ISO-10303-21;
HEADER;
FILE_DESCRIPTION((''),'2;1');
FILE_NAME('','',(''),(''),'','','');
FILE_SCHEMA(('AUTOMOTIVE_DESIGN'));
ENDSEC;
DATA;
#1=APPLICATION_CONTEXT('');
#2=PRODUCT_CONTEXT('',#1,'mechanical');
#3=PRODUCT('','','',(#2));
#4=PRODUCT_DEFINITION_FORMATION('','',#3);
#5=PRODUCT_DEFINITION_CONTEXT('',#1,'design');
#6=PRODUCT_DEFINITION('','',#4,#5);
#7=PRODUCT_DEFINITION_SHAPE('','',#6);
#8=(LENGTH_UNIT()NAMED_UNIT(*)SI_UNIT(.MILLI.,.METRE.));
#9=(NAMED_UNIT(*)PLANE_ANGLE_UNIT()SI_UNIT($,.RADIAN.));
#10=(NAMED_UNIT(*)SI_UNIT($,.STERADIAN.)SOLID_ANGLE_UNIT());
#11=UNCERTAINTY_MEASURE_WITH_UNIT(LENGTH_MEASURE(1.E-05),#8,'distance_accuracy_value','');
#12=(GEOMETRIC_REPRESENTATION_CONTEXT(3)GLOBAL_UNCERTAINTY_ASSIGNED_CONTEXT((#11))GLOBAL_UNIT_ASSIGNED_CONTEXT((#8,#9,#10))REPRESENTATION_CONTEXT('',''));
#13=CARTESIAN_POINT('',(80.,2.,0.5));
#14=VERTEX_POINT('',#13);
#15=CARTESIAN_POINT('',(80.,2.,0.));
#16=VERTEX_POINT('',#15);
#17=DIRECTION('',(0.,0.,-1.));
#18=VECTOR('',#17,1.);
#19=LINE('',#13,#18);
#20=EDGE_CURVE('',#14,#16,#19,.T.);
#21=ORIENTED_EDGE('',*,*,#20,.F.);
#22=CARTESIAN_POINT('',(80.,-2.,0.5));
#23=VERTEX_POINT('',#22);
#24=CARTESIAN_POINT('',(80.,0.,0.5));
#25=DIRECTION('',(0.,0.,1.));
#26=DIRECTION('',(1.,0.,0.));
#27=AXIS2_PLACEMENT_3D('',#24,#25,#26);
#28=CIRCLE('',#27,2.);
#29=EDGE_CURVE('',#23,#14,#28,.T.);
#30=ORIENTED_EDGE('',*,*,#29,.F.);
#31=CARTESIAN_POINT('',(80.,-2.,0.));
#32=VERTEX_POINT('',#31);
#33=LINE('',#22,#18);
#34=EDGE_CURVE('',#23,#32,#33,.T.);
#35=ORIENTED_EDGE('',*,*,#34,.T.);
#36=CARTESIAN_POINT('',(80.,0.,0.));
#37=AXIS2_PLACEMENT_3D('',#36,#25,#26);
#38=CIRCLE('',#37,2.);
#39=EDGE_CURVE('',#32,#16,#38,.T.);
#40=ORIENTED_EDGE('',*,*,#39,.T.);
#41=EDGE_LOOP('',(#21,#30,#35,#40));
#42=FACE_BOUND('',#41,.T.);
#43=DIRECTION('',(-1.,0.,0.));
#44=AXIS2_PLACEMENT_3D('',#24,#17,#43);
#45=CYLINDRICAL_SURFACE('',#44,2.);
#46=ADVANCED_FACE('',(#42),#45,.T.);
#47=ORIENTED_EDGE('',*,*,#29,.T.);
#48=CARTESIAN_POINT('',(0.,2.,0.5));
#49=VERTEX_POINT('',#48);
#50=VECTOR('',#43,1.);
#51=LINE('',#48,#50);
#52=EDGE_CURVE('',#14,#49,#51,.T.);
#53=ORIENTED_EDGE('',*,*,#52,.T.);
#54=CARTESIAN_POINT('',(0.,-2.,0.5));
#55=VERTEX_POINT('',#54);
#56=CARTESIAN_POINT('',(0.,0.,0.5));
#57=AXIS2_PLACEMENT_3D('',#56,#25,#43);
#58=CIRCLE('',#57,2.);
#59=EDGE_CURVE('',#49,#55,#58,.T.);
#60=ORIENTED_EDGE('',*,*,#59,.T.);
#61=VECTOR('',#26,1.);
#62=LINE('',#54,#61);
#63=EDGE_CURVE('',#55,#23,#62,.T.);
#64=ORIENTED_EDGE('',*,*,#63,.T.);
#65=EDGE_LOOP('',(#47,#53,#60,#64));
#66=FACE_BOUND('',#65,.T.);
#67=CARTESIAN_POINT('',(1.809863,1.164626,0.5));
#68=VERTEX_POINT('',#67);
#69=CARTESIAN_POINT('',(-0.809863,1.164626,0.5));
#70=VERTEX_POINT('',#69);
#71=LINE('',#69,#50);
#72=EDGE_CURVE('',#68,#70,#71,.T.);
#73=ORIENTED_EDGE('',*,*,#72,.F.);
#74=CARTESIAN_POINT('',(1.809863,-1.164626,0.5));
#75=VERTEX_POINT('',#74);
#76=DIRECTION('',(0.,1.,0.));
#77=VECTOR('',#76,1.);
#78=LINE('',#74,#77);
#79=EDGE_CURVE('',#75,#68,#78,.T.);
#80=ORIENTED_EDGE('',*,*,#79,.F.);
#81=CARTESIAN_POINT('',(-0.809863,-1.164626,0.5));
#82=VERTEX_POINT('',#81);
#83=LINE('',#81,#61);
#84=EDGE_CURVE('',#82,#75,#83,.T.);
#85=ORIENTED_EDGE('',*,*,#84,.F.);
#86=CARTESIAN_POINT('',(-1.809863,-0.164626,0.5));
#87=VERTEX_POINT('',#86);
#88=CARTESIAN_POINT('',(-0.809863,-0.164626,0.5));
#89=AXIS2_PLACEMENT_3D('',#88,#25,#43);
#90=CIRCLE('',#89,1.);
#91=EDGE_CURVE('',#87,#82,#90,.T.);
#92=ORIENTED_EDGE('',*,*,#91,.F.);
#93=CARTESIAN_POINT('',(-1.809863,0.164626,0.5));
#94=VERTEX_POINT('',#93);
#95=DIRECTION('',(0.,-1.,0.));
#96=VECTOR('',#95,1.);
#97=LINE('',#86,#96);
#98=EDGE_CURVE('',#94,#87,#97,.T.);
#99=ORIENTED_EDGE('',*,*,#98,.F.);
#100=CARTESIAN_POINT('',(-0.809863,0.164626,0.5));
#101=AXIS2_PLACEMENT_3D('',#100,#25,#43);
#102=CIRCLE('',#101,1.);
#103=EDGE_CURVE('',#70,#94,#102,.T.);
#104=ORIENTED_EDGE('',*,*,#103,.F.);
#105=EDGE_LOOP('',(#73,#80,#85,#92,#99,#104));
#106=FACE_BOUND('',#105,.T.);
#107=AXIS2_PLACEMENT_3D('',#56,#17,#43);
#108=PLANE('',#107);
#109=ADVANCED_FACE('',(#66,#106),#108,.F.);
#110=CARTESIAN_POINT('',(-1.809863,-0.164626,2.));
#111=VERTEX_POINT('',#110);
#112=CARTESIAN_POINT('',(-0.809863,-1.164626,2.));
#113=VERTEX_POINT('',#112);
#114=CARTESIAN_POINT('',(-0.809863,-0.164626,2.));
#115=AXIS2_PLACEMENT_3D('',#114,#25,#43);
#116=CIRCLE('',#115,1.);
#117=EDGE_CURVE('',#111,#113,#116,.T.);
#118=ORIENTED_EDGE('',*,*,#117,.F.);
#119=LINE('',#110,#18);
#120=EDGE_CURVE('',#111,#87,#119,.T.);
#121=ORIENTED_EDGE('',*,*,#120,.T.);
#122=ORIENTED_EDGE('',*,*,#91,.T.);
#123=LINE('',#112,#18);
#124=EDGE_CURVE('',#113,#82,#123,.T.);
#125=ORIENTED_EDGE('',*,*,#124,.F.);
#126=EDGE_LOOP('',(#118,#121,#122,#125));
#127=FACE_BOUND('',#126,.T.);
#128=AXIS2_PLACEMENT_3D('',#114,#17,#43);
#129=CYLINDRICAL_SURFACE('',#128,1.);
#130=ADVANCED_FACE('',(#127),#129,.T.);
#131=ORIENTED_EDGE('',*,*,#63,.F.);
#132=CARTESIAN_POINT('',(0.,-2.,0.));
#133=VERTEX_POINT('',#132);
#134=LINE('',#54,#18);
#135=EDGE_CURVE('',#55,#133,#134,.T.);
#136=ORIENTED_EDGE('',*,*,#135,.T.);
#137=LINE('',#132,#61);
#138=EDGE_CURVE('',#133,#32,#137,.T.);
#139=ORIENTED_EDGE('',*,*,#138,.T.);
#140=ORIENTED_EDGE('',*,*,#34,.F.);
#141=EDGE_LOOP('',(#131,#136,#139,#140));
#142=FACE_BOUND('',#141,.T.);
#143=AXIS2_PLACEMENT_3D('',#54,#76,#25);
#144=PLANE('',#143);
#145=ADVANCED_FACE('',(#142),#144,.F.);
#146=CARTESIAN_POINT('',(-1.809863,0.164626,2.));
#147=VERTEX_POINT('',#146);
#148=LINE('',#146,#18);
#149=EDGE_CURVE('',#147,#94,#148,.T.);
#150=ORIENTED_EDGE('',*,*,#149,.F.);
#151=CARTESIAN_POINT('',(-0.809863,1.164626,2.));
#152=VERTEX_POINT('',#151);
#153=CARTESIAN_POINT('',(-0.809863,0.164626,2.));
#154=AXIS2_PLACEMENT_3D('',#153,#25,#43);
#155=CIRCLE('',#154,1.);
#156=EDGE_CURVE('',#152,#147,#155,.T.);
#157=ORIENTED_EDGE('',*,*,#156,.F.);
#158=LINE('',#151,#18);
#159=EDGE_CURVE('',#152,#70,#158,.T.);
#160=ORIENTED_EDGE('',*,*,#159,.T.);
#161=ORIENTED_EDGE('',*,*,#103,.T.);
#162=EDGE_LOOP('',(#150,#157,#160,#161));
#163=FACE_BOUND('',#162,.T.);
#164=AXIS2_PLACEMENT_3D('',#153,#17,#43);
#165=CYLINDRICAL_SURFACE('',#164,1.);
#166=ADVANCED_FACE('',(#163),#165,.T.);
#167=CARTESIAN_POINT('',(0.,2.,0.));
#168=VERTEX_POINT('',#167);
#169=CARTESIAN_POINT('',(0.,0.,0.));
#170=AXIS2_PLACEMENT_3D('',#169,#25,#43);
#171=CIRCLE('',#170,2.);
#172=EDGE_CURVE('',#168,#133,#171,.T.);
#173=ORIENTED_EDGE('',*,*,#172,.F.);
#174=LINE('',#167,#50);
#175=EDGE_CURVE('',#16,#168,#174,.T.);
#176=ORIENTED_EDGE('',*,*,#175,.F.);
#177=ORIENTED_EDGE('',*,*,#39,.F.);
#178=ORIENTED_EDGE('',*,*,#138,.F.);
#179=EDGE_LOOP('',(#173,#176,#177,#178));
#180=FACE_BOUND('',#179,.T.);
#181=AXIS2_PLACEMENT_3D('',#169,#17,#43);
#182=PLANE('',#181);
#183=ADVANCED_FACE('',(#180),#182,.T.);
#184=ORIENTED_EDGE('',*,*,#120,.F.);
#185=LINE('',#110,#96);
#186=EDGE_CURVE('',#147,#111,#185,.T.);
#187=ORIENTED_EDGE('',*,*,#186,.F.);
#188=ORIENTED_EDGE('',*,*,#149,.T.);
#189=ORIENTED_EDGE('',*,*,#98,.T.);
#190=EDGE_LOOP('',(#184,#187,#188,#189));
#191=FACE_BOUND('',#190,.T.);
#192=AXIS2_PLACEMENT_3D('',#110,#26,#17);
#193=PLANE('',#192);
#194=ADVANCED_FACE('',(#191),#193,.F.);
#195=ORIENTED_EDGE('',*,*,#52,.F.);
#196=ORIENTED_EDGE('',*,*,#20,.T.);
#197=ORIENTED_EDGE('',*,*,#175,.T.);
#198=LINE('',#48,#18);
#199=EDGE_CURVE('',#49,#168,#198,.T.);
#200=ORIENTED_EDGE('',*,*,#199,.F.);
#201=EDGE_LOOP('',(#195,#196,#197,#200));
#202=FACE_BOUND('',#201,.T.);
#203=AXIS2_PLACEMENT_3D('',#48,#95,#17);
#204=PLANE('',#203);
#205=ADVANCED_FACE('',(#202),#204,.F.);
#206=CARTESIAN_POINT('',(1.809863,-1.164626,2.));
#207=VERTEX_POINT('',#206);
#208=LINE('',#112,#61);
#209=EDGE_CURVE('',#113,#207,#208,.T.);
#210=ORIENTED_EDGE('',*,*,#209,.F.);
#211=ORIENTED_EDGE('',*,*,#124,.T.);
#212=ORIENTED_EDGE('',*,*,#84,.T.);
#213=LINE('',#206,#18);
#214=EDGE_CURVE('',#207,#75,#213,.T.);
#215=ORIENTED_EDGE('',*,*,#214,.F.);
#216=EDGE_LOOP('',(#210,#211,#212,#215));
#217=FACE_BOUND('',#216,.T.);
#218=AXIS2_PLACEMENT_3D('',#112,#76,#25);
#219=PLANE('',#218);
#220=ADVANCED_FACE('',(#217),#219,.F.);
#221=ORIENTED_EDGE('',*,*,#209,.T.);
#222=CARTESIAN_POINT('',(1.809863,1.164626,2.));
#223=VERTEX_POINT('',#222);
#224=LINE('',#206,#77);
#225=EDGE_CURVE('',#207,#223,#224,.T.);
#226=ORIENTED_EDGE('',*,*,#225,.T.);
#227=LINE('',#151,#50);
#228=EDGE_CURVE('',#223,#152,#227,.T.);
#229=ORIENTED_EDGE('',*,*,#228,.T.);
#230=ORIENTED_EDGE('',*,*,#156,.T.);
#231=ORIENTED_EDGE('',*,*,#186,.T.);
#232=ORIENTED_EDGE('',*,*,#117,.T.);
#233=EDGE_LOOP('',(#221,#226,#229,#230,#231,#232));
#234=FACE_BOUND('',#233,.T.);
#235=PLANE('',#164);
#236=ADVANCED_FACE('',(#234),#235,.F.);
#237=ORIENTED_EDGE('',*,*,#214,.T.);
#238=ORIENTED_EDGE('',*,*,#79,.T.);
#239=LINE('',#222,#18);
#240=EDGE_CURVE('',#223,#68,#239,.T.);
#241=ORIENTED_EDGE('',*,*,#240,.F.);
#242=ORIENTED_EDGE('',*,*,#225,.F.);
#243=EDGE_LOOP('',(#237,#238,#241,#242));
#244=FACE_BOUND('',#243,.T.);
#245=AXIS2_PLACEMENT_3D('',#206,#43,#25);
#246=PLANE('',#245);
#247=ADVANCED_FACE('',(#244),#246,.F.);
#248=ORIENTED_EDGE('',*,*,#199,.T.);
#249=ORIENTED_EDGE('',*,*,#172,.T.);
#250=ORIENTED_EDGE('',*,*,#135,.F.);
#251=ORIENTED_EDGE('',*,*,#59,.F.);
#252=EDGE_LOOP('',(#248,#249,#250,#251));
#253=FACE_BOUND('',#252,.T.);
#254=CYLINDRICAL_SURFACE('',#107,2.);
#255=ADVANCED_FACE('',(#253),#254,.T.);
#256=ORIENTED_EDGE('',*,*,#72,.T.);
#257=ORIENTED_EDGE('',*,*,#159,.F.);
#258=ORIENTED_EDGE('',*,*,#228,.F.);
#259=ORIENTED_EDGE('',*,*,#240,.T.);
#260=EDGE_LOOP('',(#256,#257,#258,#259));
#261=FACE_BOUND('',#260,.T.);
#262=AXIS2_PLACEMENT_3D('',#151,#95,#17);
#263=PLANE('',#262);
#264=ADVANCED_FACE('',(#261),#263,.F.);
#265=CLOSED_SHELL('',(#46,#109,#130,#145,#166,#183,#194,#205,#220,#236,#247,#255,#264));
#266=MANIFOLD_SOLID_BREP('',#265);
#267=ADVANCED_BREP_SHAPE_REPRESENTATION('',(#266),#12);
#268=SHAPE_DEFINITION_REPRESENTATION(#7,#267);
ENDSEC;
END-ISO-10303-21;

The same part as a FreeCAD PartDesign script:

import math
import FreeCAD as App
import Part
import Sketcher

doc = App.newDocument("Part")
body = doc.addObject("PartDesign::Body", "Body")

# Sketch on XY plane
sketch1 = body.newObject("Sketcher::SketchObject", "Sketch")
sketch1.AttachmentSupport = (doc.getObject("XY_Plane"), [""])
sketch1.MapMode = "FlatFace"
sketch1.addGeometry([
    Part.LineSegment(App.Vector(0, -2, 0), App.Vector(80, -2, 0)),
    Part.ArcOfCircle(Part.Circle(App.Vector(80, 0, 0), App.Vector(0, 0, 1), 2), math.radians(-90), math.radians(90)),
    Part.LineSegment(App.Vector(80, 2, 0), App.Vector(0, 2, 0)),
    Part.ArcOfCircle(Part.Circle(App.Vector(0, 0, 0), App.Vector(0, 0, 1), 2), math.radians(90), math.radians(270)),
], False)
sketch1.addConstraint([
    Sketcher.Constraint("Tangent", 0, 2, 1, 1),
    Sketcher.Constraint("Tangent", 1, 2, 2, 1),
    Sketcher.Constraint("Tangent", 2, 2, 3, 1),
    Sketcher.Constraint("Tangent", 3, 2, 0, 1),
    Sketcher.Constraint("Horizontal", 0),
    Sketcher.Constraint("Horizontal", 2),
    Sketcher.Constraint("Coincident", 3, 3, -1, 1),
    Sketcher.Constraint("Radius", 1, 2.0),
    Sketcher.Constraint("DistanceX", 0, 1, 0, 2, 80.0),
])
pad1 = body.newObject("PartDesign::Pad", "Pad")
pad1.Profile = sketch1
pad1.Length = 0.5

# Sketch on XY plane
sketch2 = body.newObject("Sketcher::SketchObject", "Sketch001")
sketch2.AttachmentSupport = (doc.getObject("XY_Plane"), [""])
sketch2.MapMode = "FlatFace"
sketch2.AttachmentOffset = App.Placement(App.Vector(0, 0, 0.5), App.Rotation())
sketch2.addGeometry([
    Part.LineSegment(App.Vector(-0.81, -1.16, 0), App.Vector(1.81, -1.16, 0)),  # 0
    Part.LineSegment(App.Vector(1.81, -1.16, 0), App.Vector(1.81, 1.16, 0)),  # 1
    Part.LineSegment(App.Vector(1.81, 1.16, 0), App.Vector(-0.81, 1.16, 0)),  # 2
    Part.ArcOfCircle(Part.Circle(App.Vector(-0.81, 0.16, 0), App.Vector(0, 0, 1), 1), math.radians(90), math.radians(180)),  # 3
    Part.LineSegment(App.Vector(-1.81, 0.16, 0), App.Vector(-1.81, -0.16, 0)),  # 4
    Part.ArcOfCircle(Part.Circle(App.Vector(-0.81, -0.16, 0), App.Vector(0, 0, 1), 1), math.radians(-180), math.radians(-90)),  # 5
], False)
sketch2.addConstraint([
    Sketcher.Constraint("Coincident", 0, 2, 1, 1),
    Sketcher.Constraint("Coincident", 1, 2, 2, 1),
    Sketcher.Constraint("Tangent", 2, 2, 3, 1),
    Sketcher.Constraint("Tangent", 3, 2, 4, 1),
    Sketcher.Constraint("Tangent", 4, 2, 5, 1),
    Sketcher.Constraint("Tangent", 5, 2, 0, 1),
    Sketcher.Constraint("Horizontal", 0),
    Sketcher.Constraint("Vertical", 1),
    Sketcher.Constraint("Horizontal", 2),
    Sketcher.Constraint("Vertical", 4),
    Sketcher.Constraint("Equal", 3, 5),
    Sketcher.Constraint("Radius", 3, 1.0),
    Sketcher.Constraint("DistanceY", 1, 1, 1, 2, 2.329251),
    Sketcher.Constraint("DistanceX", 0, 1, 0, 2, 2.619727),
    Sketcher.Constraint("DistanceX", 3, 3, -1, 1, 0.809863),
    Sketcher.Constraint("DistanceY", -1, 1, 3, 3, 0.164626),
])
pad2 = body.newObject("PartDesign::Pad", "Pad001")
pad2.Profile = sketch2
pad2.Length = 1.5

doc.recompute()
